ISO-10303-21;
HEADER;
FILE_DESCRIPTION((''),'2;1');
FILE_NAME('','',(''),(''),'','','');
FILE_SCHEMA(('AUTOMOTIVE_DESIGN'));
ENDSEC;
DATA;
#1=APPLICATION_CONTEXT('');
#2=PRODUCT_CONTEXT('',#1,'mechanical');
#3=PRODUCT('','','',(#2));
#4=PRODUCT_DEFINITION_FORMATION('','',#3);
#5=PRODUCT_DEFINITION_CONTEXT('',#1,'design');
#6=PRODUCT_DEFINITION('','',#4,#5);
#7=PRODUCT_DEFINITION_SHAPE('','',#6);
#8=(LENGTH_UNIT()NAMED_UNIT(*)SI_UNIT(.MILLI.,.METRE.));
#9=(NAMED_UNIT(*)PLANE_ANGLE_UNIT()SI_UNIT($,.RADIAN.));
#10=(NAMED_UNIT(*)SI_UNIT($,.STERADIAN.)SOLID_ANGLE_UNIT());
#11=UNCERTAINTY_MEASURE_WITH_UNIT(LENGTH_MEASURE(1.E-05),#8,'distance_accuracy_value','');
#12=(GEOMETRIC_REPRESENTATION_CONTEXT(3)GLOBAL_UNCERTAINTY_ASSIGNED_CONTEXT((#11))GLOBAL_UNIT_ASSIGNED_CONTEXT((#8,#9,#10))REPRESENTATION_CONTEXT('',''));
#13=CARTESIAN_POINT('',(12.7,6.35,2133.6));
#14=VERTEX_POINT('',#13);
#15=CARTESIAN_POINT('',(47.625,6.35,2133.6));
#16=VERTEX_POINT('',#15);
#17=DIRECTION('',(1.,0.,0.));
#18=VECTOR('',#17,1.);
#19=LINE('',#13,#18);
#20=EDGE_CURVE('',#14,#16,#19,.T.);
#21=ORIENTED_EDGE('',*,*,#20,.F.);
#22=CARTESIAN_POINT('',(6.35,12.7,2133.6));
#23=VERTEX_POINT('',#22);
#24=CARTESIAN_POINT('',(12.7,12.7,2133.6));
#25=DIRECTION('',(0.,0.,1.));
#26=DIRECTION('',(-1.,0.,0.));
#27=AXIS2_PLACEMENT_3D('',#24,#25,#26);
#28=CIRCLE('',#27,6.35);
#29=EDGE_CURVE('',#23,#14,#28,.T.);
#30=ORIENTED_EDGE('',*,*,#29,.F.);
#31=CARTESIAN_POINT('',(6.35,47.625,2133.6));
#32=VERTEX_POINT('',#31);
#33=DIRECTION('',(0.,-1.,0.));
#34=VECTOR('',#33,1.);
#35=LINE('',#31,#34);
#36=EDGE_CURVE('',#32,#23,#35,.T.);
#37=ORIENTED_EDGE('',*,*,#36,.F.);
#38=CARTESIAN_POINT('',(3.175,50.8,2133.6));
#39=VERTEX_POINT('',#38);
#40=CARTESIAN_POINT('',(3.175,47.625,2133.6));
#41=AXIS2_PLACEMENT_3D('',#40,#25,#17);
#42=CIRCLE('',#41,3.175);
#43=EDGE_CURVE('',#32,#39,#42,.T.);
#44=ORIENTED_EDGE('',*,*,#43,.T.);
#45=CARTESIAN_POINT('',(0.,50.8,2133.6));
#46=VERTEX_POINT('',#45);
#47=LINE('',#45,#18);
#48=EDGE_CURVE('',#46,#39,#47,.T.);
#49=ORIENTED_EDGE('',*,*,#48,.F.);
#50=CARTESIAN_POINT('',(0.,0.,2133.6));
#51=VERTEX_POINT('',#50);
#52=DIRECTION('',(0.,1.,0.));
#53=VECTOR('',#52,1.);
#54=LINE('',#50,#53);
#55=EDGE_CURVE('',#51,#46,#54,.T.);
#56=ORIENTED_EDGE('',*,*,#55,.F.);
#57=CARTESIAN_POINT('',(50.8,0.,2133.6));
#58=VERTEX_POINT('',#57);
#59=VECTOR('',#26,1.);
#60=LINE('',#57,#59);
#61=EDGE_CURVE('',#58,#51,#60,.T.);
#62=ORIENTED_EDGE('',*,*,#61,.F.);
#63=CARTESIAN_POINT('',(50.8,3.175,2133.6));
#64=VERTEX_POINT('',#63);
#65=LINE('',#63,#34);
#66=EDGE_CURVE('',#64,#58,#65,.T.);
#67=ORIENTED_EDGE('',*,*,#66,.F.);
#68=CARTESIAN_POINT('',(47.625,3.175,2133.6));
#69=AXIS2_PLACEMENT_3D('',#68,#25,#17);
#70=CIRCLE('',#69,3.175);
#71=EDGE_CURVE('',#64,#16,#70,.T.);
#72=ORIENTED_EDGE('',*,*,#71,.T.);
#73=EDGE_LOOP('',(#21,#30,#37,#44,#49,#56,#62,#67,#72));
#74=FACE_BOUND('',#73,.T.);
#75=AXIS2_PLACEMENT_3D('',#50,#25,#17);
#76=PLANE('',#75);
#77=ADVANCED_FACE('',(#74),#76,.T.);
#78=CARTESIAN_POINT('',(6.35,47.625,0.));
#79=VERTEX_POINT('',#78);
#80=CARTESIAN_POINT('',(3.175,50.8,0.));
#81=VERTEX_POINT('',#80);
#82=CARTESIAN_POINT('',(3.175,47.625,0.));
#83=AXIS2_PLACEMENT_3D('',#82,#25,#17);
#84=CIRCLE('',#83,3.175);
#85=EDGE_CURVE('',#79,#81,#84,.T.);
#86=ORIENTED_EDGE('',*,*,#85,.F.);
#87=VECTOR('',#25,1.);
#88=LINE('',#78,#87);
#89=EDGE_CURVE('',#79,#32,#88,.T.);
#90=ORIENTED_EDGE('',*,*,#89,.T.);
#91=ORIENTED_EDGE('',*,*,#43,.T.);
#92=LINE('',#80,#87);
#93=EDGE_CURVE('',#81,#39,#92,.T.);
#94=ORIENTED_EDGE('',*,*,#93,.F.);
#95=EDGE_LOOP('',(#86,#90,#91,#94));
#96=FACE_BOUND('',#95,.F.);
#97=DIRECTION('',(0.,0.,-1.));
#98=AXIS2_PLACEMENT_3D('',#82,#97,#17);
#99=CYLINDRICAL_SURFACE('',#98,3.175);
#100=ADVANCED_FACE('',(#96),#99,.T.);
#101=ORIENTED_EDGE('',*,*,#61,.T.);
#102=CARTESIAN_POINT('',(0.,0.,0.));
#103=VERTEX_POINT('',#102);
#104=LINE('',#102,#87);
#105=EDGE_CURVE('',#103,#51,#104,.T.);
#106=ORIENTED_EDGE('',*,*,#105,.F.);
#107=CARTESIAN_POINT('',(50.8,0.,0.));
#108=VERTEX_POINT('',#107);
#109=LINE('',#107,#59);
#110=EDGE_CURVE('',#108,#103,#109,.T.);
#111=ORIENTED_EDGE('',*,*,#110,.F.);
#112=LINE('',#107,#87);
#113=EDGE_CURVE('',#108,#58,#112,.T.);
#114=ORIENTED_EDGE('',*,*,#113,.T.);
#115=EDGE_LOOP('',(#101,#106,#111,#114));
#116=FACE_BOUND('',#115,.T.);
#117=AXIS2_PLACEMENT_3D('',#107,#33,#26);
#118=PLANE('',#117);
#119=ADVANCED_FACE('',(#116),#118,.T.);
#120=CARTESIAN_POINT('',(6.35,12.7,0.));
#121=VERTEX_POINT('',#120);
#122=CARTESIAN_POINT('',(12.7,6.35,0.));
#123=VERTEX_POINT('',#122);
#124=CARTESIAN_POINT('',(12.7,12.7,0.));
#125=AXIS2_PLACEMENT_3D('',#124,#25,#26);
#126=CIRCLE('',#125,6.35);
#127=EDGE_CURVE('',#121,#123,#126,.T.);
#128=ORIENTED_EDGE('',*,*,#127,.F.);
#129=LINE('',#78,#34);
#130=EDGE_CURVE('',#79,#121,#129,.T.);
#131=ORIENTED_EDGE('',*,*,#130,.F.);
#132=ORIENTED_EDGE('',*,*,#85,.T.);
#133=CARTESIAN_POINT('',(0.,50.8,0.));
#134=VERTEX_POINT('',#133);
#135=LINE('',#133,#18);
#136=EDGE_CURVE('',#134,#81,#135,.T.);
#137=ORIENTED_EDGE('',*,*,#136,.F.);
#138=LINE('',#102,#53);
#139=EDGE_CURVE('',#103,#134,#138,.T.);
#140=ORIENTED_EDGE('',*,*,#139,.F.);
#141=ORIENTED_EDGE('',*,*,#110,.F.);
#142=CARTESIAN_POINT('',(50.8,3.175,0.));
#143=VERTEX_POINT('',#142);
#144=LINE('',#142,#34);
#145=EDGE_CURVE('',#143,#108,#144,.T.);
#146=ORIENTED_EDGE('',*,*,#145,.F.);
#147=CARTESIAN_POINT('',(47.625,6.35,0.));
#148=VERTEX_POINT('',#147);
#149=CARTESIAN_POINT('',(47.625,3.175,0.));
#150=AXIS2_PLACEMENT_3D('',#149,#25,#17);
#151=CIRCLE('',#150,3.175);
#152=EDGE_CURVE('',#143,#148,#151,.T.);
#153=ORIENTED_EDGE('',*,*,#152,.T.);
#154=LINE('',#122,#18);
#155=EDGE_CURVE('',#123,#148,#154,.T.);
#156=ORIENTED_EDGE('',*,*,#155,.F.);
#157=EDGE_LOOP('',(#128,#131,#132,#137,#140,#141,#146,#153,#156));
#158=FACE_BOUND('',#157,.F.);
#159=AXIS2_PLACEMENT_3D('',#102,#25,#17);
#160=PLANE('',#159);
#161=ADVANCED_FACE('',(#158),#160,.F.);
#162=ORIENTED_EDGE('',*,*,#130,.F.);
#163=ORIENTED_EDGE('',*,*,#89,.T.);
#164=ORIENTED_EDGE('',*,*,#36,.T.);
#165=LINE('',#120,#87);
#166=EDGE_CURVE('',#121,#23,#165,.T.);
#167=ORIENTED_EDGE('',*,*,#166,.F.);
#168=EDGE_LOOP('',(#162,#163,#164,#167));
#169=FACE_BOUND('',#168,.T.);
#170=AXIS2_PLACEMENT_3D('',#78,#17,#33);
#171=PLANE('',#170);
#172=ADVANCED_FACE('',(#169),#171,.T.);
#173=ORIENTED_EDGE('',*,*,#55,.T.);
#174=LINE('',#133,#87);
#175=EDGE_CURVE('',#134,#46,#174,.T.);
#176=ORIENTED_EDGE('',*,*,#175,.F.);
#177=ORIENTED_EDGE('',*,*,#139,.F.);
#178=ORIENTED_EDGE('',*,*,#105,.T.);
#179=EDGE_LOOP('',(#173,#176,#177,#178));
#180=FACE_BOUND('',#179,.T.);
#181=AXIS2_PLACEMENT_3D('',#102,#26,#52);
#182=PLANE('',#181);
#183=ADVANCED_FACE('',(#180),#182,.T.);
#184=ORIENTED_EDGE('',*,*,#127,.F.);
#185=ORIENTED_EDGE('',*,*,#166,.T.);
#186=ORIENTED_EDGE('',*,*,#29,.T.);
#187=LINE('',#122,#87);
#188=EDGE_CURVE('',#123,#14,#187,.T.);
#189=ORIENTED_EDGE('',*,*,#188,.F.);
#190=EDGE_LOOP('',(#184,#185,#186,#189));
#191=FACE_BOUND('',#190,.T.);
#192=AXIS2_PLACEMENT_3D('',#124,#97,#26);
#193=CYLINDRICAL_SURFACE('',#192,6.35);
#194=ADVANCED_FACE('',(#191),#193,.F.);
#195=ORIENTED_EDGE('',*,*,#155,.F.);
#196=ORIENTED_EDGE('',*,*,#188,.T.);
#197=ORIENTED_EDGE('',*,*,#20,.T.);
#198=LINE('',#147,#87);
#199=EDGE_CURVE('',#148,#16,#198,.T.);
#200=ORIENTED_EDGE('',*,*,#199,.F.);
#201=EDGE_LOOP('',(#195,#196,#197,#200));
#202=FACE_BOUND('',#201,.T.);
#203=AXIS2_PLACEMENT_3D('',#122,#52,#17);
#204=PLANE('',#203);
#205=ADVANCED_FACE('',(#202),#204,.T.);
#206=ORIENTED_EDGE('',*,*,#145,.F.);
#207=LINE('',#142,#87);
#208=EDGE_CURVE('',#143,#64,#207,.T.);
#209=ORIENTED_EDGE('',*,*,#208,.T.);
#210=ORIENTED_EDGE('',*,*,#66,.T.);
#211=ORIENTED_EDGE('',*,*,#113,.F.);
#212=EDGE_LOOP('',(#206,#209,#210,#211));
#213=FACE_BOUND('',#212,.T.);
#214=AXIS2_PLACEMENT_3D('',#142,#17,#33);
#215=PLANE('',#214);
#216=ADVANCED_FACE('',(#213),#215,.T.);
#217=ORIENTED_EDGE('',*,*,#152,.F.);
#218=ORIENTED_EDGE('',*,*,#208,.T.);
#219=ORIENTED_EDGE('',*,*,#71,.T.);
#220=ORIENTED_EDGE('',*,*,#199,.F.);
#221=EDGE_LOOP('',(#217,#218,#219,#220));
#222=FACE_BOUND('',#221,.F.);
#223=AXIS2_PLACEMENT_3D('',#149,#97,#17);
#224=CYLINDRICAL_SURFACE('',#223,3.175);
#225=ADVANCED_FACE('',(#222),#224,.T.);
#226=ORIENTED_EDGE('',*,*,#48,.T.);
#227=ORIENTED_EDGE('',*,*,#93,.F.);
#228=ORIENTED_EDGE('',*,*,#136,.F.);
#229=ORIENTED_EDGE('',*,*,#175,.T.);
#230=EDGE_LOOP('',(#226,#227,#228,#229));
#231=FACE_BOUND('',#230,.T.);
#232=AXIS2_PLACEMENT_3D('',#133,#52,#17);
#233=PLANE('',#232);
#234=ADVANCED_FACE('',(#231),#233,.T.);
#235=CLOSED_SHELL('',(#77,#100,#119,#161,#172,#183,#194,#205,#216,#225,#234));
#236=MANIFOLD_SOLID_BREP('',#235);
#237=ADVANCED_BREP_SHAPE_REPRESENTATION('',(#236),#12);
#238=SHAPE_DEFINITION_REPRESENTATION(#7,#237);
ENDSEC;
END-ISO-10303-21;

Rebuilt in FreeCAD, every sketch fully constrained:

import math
import FreeCAD as App
import Part
import Sketcher

V = App.Vector
Q = App.Units.Quantity

doc = App.newDocument("Part")
body = doc.addObject("PartDesign::Body", "Body")

sketch1 = body.newObject("Sketcher::SketchObject", "Sketch")
sketch1.AttachmentSupport = (doc.getObject("XY_Plane"), [""])
sketch1.MapMode = "FlatFace"
sketch1.addGeometry([
    Part.LineSegment(V(0, 50.8, 0), V(0, 0, 0)),
    Part.LineSegment(V(0, 0, 0), V(50.8, 0, 0)),
    Part.LineSegment(V(50.8, 0, 0), V(50.8, 3.2, 0)),
    Part.ArcOfCircle(Part.Circle(V(47.6, 3.2, 0), V(0, 0, 1), 3.2), math.radians(0), math.radians(90)),
    Part.LineSegment(V(47.6, 6.3, 0), V(12.7, 6.3, 0)),
    Part.ArcOfCircle(Part.Circle(V(12.7, 12.7, 0), V(0, 0, 1), 6.3), math.radians(180), math.radians(270)),
    Part.LineSegment(V(6.3, 12.7, 0), V(6.3, 47.6, 0)),
    Part.ArcOfCircle(Part.Circle(V(3.2, 47.6, 0), V(0, 0, 1), 3.2), math.radians(0), math.radians(90)),
    Part.LineSegment(V(3.2, 50.8, 0), V(0, 50.8, 0)),
], False)
sketch1.addConstraint([
    Sketcher.Constraint("Coincident", 0, 2, 1, 1),
    Sketcher.Constraint("Coincident", 1, 2, 2, 1),
    Sketcher.Constraint("Tangent", 2, 2, 3, 1),
    Sketcher.Constraint("Tangent", 3, 2, 4, 1),
    Sketcher.Constraint("Tangent", 4, 2, 5, 2),
    Sketcher.Constraint("Tangent", 5, 1, 6, 1),
    Sketcher.Constraint("Tangent", 6, 2, 7, 1),
    Sketcher.Constraint("Tangent", 7, 2, 8, 1),
    Sketcher.Constraint("Coincident", 8, 2, 0, 1),
    Sketcher.Constraint("Vertical", 0),
    Sketcher.Constraint("Horizontal", 1),
    Sketcher.Constraint("Vertical", 2),
    Sketcher.Constraint("Horizontal", 4),
    Sketcher.Constraint("Vertical", 6),
    Sketcher.Constraint("Horizontal", 8),
    Sketcher.Constraint("Coincident", 0, 2, -1, 1),
    Sketcher.Constraint("Equal", 3, 7),
    Sketcher.Constraint("Equal", 1, 0),
    Sketcher.Constraint("Equal", 8, 2),
    Sketcher.Constraint("DistanceX", 1, 1, 1, 2, Q("2 in")),
    Sketcher.Constraint("Radius", 5, Q("0.25 in")),
    Sketcher.Constraint("Radius", 3, Q("0.125 in")),
    Sketcher.Constraint("DistanceX", 8, 2, 8, 1, Q("0.125 in")),
])
pad1 = body.newObject("PartDesign::Pad", "Pad")
pad1.Profile = sketch1
pad1.Length = Q("84 in")

doc.recompute()
